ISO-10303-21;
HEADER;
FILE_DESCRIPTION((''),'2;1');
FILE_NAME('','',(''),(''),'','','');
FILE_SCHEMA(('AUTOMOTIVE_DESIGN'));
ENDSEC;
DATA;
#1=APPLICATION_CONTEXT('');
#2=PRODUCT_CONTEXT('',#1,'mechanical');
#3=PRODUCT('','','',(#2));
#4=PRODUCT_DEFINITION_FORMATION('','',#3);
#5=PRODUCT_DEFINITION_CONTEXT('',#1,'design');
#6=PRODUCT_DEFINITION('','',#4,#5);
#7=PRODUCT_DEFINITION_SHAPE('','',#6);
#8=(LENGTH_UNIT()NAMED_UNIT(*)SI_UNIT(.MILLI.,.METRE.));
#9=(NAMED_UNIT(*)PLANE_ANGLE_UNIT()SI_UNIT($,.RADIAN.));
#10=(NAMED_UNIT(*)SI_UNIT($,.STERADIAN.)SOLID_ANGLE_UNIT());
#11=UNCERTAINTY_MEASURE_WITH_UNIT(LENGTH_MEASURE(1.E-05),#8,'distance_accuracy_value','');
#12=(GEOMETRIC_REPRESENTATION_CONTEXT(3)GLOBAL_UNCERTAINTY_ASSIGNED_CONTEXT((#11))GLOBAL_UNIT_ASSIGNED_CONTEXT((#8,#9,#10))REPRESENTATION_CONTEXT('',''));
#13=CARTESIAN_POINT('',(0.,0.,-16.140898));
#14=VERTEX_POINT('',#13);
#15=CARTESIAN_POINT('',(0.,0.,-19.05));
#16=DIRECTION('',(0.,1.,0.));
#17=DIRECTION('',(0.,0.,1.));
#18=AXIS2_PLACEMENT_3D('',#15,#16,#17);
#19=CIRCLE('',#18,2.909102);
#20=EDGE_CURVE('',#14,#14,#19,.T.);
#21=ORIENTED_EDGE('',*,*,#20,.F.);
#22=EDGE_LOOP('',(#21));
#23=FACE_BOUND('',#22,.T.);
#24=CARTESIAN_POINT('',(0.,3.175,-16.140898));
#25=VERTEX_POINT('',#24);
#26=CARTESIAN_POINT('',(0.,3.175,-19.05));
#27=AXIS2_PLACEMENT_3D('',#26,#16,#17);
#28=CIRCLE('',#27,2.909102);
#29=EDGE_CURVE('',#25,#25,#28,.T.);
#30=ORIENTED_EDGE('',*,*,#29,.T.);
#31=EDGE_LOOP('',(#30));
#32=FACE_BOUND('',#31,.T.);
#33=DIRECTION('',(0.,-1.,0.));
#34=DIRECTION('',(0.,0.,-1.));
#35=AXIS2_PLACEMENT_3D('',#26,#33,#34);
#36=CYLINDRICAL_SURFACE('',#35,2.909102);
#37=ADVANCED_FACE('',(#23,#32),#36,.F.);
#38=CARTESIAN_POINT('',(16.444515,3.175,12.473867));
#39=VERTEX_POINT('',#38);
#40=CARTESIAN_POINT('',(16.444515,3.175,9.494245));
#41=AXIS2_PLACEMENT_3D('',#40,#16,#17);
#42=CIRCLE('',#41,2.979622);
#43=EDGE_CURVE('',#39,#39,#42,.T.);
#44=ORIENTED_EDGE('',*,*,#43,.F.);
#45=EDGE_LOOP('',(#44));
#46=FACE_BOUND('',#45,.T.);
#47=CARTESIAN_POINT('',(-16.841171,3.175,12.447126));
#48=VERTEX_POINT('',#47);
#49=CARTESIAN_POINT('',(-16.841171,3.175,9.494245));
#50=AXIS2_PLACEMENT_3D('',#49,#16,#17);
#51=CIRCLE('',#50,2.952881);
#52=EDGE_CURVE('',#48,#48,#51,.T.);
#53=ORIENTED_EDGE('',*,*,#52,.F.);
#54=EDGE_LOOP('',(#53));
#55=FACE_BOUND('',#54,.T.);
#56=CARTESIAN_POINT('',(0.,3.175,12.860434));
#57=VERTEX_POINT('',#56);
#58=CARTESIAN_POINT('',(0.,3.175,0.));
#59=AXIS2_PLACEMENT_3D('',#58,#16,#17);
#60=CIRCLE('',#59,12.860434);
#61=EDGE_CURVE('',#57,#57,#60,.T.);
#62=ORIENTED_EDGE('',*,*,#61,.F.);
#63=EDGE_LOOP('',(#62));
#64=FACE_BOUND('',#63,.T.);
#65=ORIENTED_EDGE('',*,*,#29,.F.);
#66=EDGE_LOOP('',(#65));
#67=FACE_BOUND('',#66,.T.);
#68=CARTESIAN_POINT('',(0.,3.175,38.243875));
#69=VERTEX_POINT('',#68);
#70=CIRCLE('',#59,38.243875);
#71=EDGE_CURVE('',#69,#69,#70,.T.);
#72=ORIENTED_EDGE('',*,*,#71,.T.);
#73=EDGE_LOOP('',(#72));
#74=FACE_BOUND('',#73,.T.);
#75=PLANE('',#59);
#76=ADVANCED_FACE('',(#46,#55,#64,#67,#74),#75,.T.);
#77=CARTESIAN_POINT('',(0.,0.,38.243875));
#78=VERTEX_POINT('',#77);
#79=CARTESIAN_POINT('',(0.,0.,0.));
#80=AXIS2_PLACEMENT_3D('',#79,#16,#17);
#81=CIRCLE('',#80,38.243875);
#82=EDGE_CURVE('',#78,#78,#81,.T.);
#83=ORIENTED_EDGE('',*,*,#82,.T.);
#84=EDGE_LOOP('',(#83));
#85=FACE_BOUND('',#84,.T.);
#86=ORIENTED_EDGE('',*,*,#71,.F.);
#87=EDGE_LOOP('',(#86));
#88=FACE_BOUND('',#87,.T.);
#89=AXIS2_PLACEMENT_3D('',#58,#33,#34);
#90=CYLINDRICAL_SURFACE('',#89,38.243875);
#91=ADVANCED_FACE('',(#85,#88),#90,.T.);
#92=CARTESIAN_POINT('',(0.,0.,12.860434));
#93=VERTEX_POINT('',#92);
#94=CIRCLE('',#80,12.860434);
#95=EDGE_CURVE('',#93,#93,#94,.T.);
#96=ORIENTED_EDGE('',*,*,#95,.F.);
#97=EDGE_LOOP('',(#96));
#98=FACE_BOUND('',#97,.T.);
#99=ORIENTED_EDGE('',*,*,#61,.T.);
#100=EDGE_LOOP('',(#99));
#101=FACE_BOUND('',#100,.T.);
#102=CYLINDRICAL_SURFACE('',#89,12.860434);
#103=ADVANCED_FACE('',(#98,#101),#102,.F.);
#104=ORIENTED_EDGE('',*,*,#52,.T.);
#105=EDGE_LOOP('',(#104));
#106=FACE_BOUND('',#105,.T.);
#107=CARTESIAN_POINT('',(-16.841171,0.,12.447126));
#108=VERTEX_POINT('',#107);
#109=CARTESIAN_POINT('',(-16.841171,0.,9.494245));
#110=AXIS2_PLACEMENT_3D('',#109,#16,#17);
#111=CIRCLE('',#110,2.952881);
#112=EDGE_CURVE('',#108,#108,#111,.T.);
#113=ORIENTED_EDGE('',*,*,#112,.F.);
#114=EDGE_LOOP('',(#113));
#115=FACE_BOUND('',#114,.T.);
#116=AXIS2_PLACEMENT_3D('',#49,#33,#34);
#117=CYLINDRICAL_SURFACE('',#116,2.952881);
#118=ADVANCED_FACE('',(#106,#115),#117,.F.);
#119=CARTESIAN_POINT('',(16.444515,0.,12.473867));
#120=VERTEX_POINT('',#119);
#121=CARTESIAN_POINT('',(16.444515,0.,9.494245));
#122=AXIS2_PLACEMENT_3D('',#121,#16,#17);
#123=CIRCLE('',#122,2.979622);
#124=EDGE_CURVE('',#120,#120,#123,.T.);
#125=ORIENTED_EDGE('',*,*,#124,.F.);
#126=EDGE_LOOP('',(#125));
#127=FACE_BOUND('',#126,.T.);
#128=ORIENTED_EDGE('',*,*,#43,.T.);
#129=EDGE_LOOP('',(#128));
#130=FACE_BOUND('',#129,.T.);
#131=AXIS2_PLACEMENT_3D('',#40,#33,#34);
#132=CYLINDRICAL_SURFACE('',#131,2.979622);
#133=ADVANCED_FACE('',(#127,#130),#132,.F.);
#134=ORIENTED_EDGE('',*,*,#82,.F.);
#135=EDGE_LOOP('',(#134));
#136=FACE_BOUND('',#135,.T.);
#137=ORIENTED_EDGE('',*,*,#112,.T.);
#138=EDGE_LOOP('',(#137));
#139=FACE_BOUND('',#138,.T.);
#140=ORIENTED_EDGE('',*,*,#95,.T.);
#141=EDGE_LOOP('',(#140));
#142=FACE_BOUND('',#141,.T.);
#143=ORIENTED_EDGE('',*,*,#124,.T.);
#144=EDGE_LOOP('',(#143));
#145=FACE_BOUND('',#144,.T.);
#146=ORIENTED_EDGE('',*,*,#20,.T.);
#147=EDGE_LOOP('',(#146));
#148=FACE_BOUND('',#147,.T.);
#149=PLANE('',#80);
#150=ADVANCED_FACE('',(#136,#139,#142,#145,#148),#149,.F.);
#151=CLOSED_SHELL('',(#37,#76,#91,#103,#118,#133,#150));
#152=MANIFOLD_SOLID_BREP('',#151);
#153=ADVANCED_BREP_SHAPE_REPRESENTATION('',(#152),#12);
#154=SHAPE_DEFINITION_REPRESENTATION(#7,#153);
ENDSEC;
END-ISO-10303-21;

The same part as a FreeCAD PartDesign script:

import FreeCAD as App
import Part
import Sketcher

V = App.Vector
Q = App.Units.Quantity

doc = App.newDocument("Part")
params = doc.addObject("Spreadsheet::Sheet", "Params")
for row, (alias, value) in enumerate([
    ("pad1_length", "0.125 in"),
], start=1):
    params.set(f"A{row}", alias)
    params.set(f"B{row}", "=" + value)
    params.setAlias(f"B{row}", alias)

body = doc.addObject("PartDesign::Body", "Body")

# Sketch on XZ plane
sketch1 = body.newObject("Sketcher::SketchObject", "Sketch")
sketch1.AttachmentSupport = (doc.getObject("XZ_Plane"), [""])
sketch1.MapMode = "FlatFace"
sketch1.addGeometry([
    Part.Circle(V(0, 0, 0), V(0, 0, 1), 38.2),  # 0
    Part.Circle(V(-16.8, 9.5, 0), V(0, 0, 1), 3),  # 1
    Part.Circle(V(0, -19.1, 0), V(0, 0, 1), 2.9),  # 2
    Part.Circle(V(0, 0, 0), V(0, 0, 1), 12.9),  # 3
    Part.Circle(V(16.4, 9.5, 0), V(0, 0, 1), 3),  # 4
], False)
sketch1.addConstraint([
    Sketcher.Constraint("Coincident", 0, 3, -1, 1),
    Sketcher.Constraint("Coincident", 3, 3, -1, 1),
    Sketcher.Constraint("PointOnObject", 2, 3, -2),
    Sketcher.Constraint("Horizontal", 1, 3, 4, 3),
    Sketcher.Constraint("DistanceY", 2, 3, -1, 1, Q("0.75 in")),
    Sketcher.Constraint("Diameter", 0, 76.48775),
    Sketcher.Constraint("Diameter", 1, 5.905761),
    Sketcher.Constraint("Diameter", 2, 5.818204),
    Sketcher.Constraint("Diameter", 3, 25.720868),
    Sketcher.Constraint("Diameter", 4, 5.959244),
    Sketcher.Constraint("DistanceX", 1, 3, -1, 1, 16.841171),
    Sketcher.Constraint("DistanceY", -1, 1, 1, 3, 9.494245),
    Sketcher.Constraint("DistanceX", -1, 1, 4, 3, 16.444515),
])
pad1 = body.newObject("PartDesign::Pad", "Pad")
pad1.Profile = sketch1
pad1.setExpression("Length", "Params.pad1_length")
pad1.Reversed = True

doc.recompute()
